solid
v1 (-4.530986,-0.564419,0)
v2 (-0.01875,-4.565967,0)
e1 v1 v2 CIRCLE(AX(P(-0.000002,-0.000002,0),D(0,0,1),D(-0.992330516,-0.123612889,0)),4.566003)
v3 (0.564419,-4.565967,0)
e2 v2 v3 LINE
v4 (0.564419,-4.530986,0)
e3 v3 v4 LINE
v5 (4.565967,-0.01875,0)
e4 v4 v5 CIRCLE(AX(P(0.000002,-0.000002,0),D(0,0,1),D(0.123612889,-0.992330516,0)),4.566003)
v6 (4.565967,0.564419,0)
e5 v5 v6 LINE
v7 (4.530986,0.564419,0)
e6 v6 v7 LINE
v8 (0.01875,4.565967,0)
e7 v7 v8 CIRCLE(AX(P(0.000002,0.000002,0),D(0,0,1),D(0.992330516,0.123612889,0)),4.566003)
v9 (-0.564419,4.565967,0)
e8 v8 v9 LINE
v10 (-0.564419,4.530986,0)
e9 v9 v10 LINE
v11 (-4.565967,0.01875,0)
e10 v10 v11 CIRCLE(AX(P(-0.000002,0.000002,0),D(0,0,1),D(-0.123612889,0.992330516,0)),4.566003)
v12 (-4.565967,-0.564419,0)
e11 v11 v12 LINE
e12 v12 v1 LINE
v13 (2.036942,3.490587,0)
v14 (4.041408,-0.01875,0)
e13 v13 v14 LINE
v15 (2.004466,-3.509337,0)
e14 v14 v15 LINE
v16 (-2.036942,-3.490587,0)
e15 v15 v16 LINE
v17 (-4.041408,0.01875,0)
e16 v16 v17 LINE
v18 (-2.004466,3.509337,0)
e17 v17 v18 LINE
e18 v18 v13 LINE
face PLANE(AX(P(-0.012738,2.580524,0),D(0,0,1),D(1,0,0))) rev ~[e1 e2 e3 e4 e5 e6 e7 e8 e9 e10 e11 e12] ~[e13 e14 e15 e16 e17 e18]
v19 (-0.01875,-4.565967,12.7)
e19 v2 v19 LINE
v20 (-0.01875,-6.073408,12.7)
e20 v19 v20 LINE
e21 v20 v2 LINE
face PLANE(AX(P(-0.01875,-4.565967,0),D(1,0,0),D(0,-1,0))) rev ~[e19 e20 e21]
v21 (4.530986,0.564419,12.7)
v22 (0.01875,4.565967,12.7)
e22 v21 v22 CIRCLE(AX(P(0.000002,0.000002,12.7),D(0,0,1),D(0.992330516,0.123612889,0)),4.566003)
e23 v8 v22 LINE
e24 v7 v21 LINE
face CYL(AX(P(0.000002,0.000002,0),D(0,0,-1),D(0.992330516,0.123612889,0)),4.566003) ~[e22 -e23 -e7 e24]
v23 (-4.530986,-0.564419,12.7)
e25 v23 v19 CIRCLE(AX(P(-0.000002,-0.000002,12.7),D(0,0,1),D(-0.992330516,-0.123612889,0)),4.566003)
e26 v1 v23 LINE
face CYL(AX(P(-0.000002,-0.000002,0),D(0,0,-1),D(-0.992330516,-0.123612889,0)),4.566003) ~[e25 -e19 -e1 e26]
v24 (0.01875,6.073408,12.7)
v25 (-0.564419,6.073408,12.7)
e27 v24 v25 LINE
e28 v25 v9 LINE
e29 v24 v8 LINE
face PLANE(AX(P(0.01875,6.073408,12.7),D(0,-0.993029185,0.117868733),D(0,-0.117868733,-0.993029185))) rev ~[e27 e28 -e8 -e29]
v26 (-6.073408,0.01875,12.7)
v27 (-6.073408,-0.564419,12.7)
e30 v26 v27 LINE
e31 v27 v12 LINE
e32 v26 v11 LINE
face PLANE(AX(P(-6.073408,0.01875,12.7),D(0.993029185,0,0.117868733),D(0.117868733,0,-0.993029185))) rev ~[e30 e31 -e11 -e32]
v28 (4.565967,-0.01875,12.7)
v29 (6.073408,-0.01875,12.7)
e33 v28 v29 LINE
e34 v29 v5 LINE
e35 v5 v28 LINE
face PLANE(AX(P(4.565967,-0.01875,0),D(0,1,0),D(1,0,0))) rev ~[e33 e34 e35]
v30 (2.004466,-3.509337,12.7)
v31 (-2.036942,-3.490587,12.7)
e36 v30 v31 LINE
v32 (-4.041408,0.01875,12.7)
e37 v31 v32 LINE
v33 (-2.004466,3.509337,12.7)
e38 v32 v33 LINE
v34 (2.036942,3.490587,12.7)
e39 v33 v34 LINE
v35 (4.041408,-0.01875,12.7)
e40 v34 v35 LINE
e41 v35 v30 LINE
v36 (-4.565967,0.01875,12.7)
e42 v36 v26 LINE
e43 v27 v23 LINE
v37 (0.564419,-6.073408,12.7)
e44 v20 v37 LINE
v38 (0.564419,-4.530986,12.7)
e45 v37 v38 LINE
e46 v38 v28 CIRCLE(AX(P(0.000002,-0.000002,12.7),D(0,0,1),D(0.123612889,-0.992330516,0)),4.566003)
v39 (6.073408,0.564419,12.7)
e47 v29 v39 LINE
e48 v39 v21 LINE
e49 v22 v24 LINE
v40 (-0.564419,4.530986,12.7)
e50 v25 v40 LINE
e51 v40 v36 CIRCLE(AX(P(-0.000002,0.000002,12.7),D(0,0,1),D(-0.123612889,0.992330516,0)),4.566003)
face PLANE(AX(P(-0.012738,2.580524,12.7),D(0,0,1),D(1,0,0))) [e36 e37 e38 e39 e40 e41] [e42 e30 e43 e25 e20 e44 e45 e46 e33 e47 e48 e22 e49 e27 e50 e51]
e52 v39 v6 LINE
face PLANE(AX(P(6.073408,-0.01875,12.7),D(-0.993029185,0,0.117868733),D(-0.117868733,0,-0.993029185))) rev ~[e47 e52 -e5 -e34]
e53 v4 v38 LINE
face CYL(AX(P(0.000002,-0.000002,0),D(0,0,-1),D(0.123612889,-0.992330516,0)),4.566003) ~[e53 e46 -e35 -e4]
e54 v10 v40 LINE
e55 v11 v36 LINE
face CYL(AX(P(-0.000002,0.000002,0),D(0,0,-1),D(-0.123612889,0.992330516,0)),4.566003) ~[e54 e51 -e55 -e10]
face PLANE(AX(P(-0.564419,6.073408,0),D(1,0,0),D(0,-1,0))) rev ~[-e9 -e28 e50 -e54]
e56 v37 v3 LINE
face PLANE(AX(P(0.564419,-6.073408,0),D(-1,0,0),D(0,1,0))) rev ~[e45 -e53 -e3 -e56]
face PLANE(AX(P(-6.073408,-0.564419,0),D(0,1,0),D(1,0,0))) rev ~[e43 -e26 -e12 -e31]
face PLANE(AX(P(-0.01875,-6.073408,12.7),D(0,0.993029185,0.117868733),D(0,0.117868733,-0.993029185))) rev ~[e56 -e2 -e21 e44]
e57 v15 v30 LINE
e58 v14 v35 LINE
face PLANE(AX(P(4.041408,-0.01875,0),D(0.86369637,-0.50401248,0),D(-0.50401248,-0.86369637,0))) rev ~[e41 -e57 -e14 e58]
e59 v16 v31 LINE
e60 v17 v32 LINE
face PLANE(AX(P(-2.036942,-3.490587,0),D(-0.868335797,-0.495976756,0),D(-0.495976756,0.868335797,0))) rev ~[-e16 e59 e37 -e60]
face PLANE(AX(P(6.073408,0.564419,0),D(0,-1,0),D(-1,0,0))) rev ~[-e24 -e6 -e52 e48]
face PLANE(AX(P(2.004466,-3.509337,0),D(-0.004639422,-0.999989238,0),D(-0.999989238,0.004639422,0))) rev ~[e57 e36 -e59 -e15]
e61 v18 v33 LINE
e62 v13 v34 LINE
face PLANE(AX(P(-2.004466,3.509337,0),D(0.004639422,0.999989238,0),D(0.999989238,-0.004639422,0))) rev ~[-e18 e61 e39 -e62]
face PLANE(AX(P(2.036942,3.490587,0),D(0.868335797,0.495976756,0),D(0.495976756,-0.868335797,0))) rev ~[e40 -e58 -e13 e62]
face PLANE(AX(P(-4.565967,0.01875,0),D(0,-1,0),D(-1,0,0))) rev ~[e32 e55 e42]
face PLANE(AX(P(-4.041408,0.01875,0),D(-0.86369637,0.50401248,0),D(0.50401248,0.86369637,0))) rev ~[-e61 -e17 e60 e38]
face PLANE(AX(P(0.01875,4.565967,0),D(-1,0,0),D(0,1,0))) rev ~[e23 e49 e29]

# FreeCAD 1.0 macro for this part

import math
import FreeCAD as App
import Part
import Sketcher
Q = App.Units.Quantity


def add_polygon(sketch, points):
    """Adds a closed chain of lines whose ends are joined by coincident constraints."""
    first, n = sketch.GeometryCount, len(points)
    for a, b in zip(points, points[1:] + points[:1]):
        sketch.addGeometry(Part.LineSegment(App.Vector(*a, 0), App.Vector(*b, 0)), False)
    for i in range(n):
        sketch.addConstraint(Sketcher.Constraint("Coincident", first + i, 2, first + (i + 1) % n, 1))

doc = App.newDocument("Part")
body = doc.addObject("PartDesign::Body", "Body")

# Sketch on XY plane
sketch1 = body.newObject("Sketcher::SketchObject", "Sketch")
sketch1.AttachmentSupport = (doc.getObject("XY_Plane"), [""])
sketch1.MapMode = "FlatFace"
sketch1.addGeometry(Part.LineSegment(App.Vector(4.565967, -0.01875, 0), App.Vector(6.073408, -0.01875, 0)), False)  # 0
sketch1.addGeometry(Part.LineSegment(App.Vector(6.073408, -0.01875, 0), App.Vector(6.073408, 0.564419, 0)), False)  # 1
sketch1.addGeometry(Part.LineSegment(App.Vector(6.073408, 0.564419, 0), App.Vector(4.530986, 0.564419, 0)), False)  # 2
sketch1.addGeometry(Part.ArcOfCircle(Part.Circle(App.Vector(0.000002, 0.000002, 0), App.Vector(0, 0, 1), 4.566003), math.radians(7.100659), math.radians(89.764737)), False)  # 3
sketch1.addGeometry(Part.LineSegment(App.Vector(0.01875, 4.565967, 0), App.Vector(0.01875, 6.073408, 0)), False)  # 4
sketch1.addGeometry(Part.LineSegment(App.Vector(0.01875, 6.073408, 0), App.Vector(-0.564419, 6.073408, 0)), False)  # 5
sketch1.addGeometry(Part.LineSegment(App.Vector(-0.564419, 6.073408, 0), App.Vector(-0.564419, 4.530986, 0)), False)  # 6
sketch1.addGeometry(Part.ArcOfCircle(Part.Circle(App.Vector(-0.000002, 0.000002, 0), App.Vector(0, 0, 1), 4.566003), math.radians(97.100659), math.radians(179.764737)), False)  # 7
sketch1.addGeometry(Part.LineSegment(App.Vector(-4.565967, 0.01875, 0), App.Vector(-6.073408, 0.01875, 0)), False)  # 8
sketch1.addGeometry(Part.LineSegment(App.Vector(-6.073408, 0.01875, 0), App.Vector(-6.073408, -0.564419, 0)), False)  # 9
sketch1.addGeometry(Part.LineSegment(App.Vector(-6.073408, -0.564419, 0), App.Vector(-4.530986, -0.564419, 0)), False)  # 10
sketch1.addGeometry(Part.ArcOfCircle(Part.Circle(App.Vector(-0.000002, -0.000002, 0), App.Vector(0, 0, 1), 4.566003), math.radians(-172.899341), math.radians(-90.235263)), False)  # 11
sketch1.addGeometry(Part.LineSegment(App.Vector(-0.01875, -4.565967, 0), App.Vector(-0.01875, -6.073408, 0)), False)  # 12
sketch1.addGeometry(Part.LineSegment(App.Vector(-0.01875, -6.073408, 0), App.Vector(0.564419, -6.073408, 0)), False)  # 13
sketch1.addGeometry(Part.LineSegment(App.Vector(0.564419, -6.073408, 0), App.Vector(0.564419, -4.530986, 0)), False)  # 14
sketch1.addGeometry(Part.ArcOfCircle(Part.Circle(App.Vector(0.000002, -0.000002, 0), App.Vector(0, 0, 1), 4.566003), math.radians(-82.899341), math.radians(-0.235263)), False)  # 15
add_polygon(sketch1, [(-2.004466, 3.509337), (2.036942, 3.490587), (4.041408, -0.01875), (2.004466, -3.509337), (-2.036942, -3.490587), (-4.041408, 0.01875)])  # lines 16-21
sketch1.addConstraint(Sketcher.Constraint("Coincident", 0, 2, 1, 1))
sketch1.addConstraint(Sketcher.Constraint("Coincident", 1, 2, 2, 1))
sketch1.addConstraint(Sketcher.Constraint("Coincident", 2, 2, 3, 1))
sketch1.addConstraint(Sketcher.Constraint("Coincident", 3, 2, 4, 1))
sketch1.addConstraint(Sketcher.Constraint("Coincident", 4, 2, 5, 1))
sketch1.addConstraint(Sketcher.Constraint("Coincident", 5, 2, 6, 1))
sketch1.addConstraint(Sketcher.Constraint("Coincident", 6, 2, 7, 1))
sketch1.addConstraint(Sketcher.Constraint("Coincident", 7, 2, 8, 1))
sketch1.addConstraint(Sketcher.Constraint("Coincident", 8, 2, 9, 1))
sketch1.addConstraint(Sketcher.Constraint("Coincident", 9, 2, 10, 1))
sketch1.addConstraint(Sketcher.Constraint("Coincident", 10, 2, 11, 1))
sketch1.addConstraint(Sketcher.Constraint("Coincident", 11, 2, 12, 1))
sketch1.addConstraint(Sketcher.Constraint("Coincident", 12, 2, 13, 1))
sketch1.addConstraint(Sketcher.Constraint("Coincident", 13, 2, 14, 1))
sketch1.addConstraint(Sketcher.Constraint("Coincident", 14, 2, 15, 1))
sketch1.addConstraint(Sketcher.Constraint("Coincident", 15, 2, 0, 1))
sketch1.addConstraint(Sketcher.Constraint("Horizontal", 0))
sketch1.addConstraint(Sketcher.Constraint("Vertical", 1))
sketch1.addConstraint(Sketcher.Constraint("Horizontal", 2))
sketch1.addConstraint(Sketcher.Constraint("Vertical", 4))
sketch1.addConstraint(Sketcher.Constraint("Horizontal", 5))
sketch1.addConstraint(Sketcher.Constraint("Vertical", 6))
sketch1.addConstraint(Sketcher.Constraint("Horizontal", 8))
sketch1.addConstraint(Sketcher.Constraint("Vertical", 9))
sketch1.addConstraint(Sketcher.Constraint("Horizontal", 10))
sketch1.addConstraint(Sketcher.Constraint("Vertical", 12))
sketch1.addConstraint(Sketcher.Constraint("Horizontal", 13))
sketch1.addConstraint(Sketcher.Constraint("Vertical", 14))
sketch1.addConstraint(Sketcher.Constraint("Coincident", 3, 3, -1, 1))
sketch1.addConstraint(Sketcher.Constraint("Coincident", 7, 3, -1, 1))
sketch1.addConstraint(Sketcher.Constraint("Coincident", 11, 3, -1, 1))
sketch1.addConstraint(Sketcher.Constraint("Coincident", 15, 3, -1, 1))
sketch1.addConstraint(Sketcher.Constraint("Equal", 3, 7))
sketch1.addConstraint(Sketcher.Constraint("Equal", 7, 11))
sketch1.addConstraint(Sketcher.Constraint("Equal", 11, 15))
sketch1.addConstraint(Sketcher.Constraint("Symmetric", 0, 2, 8, 2, -1, 1))
sketch1.addConstraint(Sketcher.Constraint("Symmetric", 4, 2, 12, 2, -1, 1))
sketch1.addConstraint(Sketcher.Constraint("Symmetric", 16, 2, 19, 2, -1, 1))
sketch1.addConstraint(Sketcher.Constraint("Symmetric", 17, 2, 20, 2, -1, 1))
sketch1.addConstraint(Sketcher.Constraint("Symmetric", 18, 2, 21, 2, -1, 1))
sketch1.addConstraint(Sketcher.Constraint("Horizontal", 15, 2, 17, 2))
sketch1.addConstraint(Sketcher.Constraint("Equal", 2, 10))
sketch1.addConstraint(Sketcher.Constraint("Equal", 5, 13))
sketch1.addConstraint(Sketcher.Constraint("Equal", 13, 1))
sketch1.addConstraint(Sketcher.Constraint("Equal", 8, 4))
sketch1.addConstraint(Sketcher.Constraint("Equal", 10, 6))
sketch1.addConstraint(Sketcher.Constraint("Equal", 16, 17))
sketch1.addConstraint(Sketcher.Constraint("Equal", 17, 18))
sketch1.addConstraint(Sketcher.Constraint("DistanceX", 17, 2, 0, 2, Q("0.08 in")))
sketch1.addConstraint(Sketcher.Constraint("Radius", 3, Q("4.566003 mm")))
sketch1.addConstraint(Sketcher.Constraint("DistanceX", 0, 1, 0, 2, Q("1.507441 mm")))
sketch1.addConstraint(Sketcher.Constraint("DistanceX", 2, 2, 2, 1, Q("1.542422 mm")))
sketch1.addConstraint(Sketcher.Constraint("DistanceX", 5, 2, 5, 1, Q("0.583169 mm")))
sketch1.addConstraint(Sketcher.Constraint("DistanceY", 16, 2, 6, 2, Q("1.040399 mm")))
sketch1.addConstraint(Sketcher.Constraint("Distance", 16, Q("4.041451 mm")))
pad1 = body.newObject("PartDesign::Pad", "Pad")
pad1.Profile = sketch1
pad1.Length = Q("0.5 in")

# Sketch on XZ plane
sketch2 = body.newObject("Sketcher::SketchObject", "Sketch001")
sketch2.AttachmentSupport = (doc.getObject("XZ_Plane"), [""])
sketch2.MapMode = "FlatFace"
sketch2.AttachmentOffset = App.Placement(App.Vector(0, 0, 0.01875), App.Rotation())
add_polygon(sketch2, [(6.073408, 0), (6.073408, 12.7), (4.565967, 0)])  # lines 0-2
sketch2.addConstraint(Sketcher.Constraint("Vertical", 0))
sketch2.addConstraint(Sketcher.Constraint("Horizontal", 2))
sketch2.addConstraint(Sketcher.Constraint("PointOnObject", 1, 2, -1))
sketch2.addConstraint(Sketcher.Constraint("DistanceY", 0, 1, 0, 2, Q("0.5 in")))
sketch2.addConstraint(Sketcher.Constraint("DistanceX", 2, 1, 2, 2, Q("1.507441 mm")))
sketch2.addConstraint(Sketcher.Constraint("DistanceX", -1, 1, 0, 2, Q("6.073408 mm")))
pocket1 = body.newObject("PartDesign::Pocket", "Pocket")
pocket1.Profile = sketch2
pocket1.Length = Q("1 in")

# Sketch on YZ plane
sketch3 = body.newObject("Sketcher::SketchObject", "Sketch002")
sketch3.AttachmentSupport = (doc.getObject("YZ_Plane"), [""])
sketch3.MapMode = "FlatFace"
sketch3.AttachmentOffset = App.Placement(App.Vector(0, 0, -0.01875), App.Rotation())
add_polygon(sketch3, [(-6.073408, 0), (-6.073408, 12.7), (-4.565967, 0)])  # lines 0-2
sketch3.addConstraint(Sketcher.Constraint("Vertical", 0))
sketch3.addConstraint(Sketcher.Constraint("Horizontal", 2))
sketch3.addConstraint(Sketcher.Constraint("PointOnObject", 1, 2, -1))
sketch3.addConstraint(Sketcher.Constraint("DistanceY", 0, 1, 0, 2, Q("0.5 in")))
sketch3.addConstraint(Sketcher.Constraint("DistanceX", 2, 2, 2, 1, Q("1.507441 mm")))
sketch3.addConstraint(Sketcher.Constraint("DistanceX", 0, 2, -1, 1, Q("6.073408 mm")))
pocket2 = body.newObject("PartDesign::Pocket", "Pocket001")
pocket2.Profile = sketch3
pocket2.Length = Q("1 in")
pocket2.Reversed = True

# Sketch on YZ plane
sketch4 = body.newObject("Sketcher::SketchObject", "Sketch003")
sketch4.AttachmentSupport = (doc.getObject("YZ_Plane"), [""])
sketch4.MapMode = "FlatFace"
sketch4.AttachmentOffset = App.Placement(App.Vector(0, 0, 0.01875), App.Rotation())
add_polygon(sketch4, [(6.073408, 0), (6.073408, 12.7), (4.565967, 0)])  # lines 0-2
sketch4.addConstraint(Sketcher.Constraint("Vertical", 0))
sketch4.addConstraint(Sketcher.Constraint("Horizontal", 2))
sketch4.addConstraint(Sketcher.Constraint("PointOnObject", 1, 2, -1))
sketch4.addConstraint(Sketcher.Constraint("DistanceY", 0, 1, 0, 2, Q("0.5 in")))
sketch4.addConstraint(Sketcher.Constraint("DistanceX", 2, 1, 2, 2, Q("1.507441 mm")))
sketch4.addConstraint(Sketcher.Constraint("DistanceX", -1, 1, 0, 2, Q("6.073408 mm")))
pocket3 = body.newObject("PartDesign::Pocket", "Pocket002")
pocket3.Profile = sketch4
pocket3.Length = Q("1 in")

# Sketch on XZ plane
sketch5 = body.newObject("Sketcher::SketchObject", "Sketch004")
sketch5.AttachmentSupport = (doc.getObject("XZ_Plane"), [""])
sketch5.MapMode = "FlatFace"
sketch5.AttachmentOffset = App.Placement(App.Vector(0, 0, -0.01875), App.Rotation())
add_polygon(sketch5, [(-6.073408, 0), (-6.073408, 12.7), (-4.565967, 0)])  # lines 0-2
sketch5.addConstraint(Sketcher.Constraint("Vertical", 0))
sketch5.addConstraint(Sketcher.Constraint("Horizontal", 2))
sketch5.addConstraint(Sketcher.Constraint("PointOnObject", 1, 2, -1))
sketch5.addConstraint(Sketcher.Constraint("DistanceY", 0, 1, 0, 2, Q("0.5 in")))
sketch5.addConstraint(Sketcher.Constraint("DistanceX", 2, 2, 2, 1, Q("1.507441 mm")))
sketch5.addConstraint(Sketcher.Constraint("DistanceX", 0, 2, -1, 1, Q("6.073408 mm")))
pocket4 = body.newObject("PartDesign::Pocket", "Pocket003")
pocket4.Profile = sketch5
pocket4.Length = Q("1 in")
pocket4.Reversed = True

doc.recompute()
